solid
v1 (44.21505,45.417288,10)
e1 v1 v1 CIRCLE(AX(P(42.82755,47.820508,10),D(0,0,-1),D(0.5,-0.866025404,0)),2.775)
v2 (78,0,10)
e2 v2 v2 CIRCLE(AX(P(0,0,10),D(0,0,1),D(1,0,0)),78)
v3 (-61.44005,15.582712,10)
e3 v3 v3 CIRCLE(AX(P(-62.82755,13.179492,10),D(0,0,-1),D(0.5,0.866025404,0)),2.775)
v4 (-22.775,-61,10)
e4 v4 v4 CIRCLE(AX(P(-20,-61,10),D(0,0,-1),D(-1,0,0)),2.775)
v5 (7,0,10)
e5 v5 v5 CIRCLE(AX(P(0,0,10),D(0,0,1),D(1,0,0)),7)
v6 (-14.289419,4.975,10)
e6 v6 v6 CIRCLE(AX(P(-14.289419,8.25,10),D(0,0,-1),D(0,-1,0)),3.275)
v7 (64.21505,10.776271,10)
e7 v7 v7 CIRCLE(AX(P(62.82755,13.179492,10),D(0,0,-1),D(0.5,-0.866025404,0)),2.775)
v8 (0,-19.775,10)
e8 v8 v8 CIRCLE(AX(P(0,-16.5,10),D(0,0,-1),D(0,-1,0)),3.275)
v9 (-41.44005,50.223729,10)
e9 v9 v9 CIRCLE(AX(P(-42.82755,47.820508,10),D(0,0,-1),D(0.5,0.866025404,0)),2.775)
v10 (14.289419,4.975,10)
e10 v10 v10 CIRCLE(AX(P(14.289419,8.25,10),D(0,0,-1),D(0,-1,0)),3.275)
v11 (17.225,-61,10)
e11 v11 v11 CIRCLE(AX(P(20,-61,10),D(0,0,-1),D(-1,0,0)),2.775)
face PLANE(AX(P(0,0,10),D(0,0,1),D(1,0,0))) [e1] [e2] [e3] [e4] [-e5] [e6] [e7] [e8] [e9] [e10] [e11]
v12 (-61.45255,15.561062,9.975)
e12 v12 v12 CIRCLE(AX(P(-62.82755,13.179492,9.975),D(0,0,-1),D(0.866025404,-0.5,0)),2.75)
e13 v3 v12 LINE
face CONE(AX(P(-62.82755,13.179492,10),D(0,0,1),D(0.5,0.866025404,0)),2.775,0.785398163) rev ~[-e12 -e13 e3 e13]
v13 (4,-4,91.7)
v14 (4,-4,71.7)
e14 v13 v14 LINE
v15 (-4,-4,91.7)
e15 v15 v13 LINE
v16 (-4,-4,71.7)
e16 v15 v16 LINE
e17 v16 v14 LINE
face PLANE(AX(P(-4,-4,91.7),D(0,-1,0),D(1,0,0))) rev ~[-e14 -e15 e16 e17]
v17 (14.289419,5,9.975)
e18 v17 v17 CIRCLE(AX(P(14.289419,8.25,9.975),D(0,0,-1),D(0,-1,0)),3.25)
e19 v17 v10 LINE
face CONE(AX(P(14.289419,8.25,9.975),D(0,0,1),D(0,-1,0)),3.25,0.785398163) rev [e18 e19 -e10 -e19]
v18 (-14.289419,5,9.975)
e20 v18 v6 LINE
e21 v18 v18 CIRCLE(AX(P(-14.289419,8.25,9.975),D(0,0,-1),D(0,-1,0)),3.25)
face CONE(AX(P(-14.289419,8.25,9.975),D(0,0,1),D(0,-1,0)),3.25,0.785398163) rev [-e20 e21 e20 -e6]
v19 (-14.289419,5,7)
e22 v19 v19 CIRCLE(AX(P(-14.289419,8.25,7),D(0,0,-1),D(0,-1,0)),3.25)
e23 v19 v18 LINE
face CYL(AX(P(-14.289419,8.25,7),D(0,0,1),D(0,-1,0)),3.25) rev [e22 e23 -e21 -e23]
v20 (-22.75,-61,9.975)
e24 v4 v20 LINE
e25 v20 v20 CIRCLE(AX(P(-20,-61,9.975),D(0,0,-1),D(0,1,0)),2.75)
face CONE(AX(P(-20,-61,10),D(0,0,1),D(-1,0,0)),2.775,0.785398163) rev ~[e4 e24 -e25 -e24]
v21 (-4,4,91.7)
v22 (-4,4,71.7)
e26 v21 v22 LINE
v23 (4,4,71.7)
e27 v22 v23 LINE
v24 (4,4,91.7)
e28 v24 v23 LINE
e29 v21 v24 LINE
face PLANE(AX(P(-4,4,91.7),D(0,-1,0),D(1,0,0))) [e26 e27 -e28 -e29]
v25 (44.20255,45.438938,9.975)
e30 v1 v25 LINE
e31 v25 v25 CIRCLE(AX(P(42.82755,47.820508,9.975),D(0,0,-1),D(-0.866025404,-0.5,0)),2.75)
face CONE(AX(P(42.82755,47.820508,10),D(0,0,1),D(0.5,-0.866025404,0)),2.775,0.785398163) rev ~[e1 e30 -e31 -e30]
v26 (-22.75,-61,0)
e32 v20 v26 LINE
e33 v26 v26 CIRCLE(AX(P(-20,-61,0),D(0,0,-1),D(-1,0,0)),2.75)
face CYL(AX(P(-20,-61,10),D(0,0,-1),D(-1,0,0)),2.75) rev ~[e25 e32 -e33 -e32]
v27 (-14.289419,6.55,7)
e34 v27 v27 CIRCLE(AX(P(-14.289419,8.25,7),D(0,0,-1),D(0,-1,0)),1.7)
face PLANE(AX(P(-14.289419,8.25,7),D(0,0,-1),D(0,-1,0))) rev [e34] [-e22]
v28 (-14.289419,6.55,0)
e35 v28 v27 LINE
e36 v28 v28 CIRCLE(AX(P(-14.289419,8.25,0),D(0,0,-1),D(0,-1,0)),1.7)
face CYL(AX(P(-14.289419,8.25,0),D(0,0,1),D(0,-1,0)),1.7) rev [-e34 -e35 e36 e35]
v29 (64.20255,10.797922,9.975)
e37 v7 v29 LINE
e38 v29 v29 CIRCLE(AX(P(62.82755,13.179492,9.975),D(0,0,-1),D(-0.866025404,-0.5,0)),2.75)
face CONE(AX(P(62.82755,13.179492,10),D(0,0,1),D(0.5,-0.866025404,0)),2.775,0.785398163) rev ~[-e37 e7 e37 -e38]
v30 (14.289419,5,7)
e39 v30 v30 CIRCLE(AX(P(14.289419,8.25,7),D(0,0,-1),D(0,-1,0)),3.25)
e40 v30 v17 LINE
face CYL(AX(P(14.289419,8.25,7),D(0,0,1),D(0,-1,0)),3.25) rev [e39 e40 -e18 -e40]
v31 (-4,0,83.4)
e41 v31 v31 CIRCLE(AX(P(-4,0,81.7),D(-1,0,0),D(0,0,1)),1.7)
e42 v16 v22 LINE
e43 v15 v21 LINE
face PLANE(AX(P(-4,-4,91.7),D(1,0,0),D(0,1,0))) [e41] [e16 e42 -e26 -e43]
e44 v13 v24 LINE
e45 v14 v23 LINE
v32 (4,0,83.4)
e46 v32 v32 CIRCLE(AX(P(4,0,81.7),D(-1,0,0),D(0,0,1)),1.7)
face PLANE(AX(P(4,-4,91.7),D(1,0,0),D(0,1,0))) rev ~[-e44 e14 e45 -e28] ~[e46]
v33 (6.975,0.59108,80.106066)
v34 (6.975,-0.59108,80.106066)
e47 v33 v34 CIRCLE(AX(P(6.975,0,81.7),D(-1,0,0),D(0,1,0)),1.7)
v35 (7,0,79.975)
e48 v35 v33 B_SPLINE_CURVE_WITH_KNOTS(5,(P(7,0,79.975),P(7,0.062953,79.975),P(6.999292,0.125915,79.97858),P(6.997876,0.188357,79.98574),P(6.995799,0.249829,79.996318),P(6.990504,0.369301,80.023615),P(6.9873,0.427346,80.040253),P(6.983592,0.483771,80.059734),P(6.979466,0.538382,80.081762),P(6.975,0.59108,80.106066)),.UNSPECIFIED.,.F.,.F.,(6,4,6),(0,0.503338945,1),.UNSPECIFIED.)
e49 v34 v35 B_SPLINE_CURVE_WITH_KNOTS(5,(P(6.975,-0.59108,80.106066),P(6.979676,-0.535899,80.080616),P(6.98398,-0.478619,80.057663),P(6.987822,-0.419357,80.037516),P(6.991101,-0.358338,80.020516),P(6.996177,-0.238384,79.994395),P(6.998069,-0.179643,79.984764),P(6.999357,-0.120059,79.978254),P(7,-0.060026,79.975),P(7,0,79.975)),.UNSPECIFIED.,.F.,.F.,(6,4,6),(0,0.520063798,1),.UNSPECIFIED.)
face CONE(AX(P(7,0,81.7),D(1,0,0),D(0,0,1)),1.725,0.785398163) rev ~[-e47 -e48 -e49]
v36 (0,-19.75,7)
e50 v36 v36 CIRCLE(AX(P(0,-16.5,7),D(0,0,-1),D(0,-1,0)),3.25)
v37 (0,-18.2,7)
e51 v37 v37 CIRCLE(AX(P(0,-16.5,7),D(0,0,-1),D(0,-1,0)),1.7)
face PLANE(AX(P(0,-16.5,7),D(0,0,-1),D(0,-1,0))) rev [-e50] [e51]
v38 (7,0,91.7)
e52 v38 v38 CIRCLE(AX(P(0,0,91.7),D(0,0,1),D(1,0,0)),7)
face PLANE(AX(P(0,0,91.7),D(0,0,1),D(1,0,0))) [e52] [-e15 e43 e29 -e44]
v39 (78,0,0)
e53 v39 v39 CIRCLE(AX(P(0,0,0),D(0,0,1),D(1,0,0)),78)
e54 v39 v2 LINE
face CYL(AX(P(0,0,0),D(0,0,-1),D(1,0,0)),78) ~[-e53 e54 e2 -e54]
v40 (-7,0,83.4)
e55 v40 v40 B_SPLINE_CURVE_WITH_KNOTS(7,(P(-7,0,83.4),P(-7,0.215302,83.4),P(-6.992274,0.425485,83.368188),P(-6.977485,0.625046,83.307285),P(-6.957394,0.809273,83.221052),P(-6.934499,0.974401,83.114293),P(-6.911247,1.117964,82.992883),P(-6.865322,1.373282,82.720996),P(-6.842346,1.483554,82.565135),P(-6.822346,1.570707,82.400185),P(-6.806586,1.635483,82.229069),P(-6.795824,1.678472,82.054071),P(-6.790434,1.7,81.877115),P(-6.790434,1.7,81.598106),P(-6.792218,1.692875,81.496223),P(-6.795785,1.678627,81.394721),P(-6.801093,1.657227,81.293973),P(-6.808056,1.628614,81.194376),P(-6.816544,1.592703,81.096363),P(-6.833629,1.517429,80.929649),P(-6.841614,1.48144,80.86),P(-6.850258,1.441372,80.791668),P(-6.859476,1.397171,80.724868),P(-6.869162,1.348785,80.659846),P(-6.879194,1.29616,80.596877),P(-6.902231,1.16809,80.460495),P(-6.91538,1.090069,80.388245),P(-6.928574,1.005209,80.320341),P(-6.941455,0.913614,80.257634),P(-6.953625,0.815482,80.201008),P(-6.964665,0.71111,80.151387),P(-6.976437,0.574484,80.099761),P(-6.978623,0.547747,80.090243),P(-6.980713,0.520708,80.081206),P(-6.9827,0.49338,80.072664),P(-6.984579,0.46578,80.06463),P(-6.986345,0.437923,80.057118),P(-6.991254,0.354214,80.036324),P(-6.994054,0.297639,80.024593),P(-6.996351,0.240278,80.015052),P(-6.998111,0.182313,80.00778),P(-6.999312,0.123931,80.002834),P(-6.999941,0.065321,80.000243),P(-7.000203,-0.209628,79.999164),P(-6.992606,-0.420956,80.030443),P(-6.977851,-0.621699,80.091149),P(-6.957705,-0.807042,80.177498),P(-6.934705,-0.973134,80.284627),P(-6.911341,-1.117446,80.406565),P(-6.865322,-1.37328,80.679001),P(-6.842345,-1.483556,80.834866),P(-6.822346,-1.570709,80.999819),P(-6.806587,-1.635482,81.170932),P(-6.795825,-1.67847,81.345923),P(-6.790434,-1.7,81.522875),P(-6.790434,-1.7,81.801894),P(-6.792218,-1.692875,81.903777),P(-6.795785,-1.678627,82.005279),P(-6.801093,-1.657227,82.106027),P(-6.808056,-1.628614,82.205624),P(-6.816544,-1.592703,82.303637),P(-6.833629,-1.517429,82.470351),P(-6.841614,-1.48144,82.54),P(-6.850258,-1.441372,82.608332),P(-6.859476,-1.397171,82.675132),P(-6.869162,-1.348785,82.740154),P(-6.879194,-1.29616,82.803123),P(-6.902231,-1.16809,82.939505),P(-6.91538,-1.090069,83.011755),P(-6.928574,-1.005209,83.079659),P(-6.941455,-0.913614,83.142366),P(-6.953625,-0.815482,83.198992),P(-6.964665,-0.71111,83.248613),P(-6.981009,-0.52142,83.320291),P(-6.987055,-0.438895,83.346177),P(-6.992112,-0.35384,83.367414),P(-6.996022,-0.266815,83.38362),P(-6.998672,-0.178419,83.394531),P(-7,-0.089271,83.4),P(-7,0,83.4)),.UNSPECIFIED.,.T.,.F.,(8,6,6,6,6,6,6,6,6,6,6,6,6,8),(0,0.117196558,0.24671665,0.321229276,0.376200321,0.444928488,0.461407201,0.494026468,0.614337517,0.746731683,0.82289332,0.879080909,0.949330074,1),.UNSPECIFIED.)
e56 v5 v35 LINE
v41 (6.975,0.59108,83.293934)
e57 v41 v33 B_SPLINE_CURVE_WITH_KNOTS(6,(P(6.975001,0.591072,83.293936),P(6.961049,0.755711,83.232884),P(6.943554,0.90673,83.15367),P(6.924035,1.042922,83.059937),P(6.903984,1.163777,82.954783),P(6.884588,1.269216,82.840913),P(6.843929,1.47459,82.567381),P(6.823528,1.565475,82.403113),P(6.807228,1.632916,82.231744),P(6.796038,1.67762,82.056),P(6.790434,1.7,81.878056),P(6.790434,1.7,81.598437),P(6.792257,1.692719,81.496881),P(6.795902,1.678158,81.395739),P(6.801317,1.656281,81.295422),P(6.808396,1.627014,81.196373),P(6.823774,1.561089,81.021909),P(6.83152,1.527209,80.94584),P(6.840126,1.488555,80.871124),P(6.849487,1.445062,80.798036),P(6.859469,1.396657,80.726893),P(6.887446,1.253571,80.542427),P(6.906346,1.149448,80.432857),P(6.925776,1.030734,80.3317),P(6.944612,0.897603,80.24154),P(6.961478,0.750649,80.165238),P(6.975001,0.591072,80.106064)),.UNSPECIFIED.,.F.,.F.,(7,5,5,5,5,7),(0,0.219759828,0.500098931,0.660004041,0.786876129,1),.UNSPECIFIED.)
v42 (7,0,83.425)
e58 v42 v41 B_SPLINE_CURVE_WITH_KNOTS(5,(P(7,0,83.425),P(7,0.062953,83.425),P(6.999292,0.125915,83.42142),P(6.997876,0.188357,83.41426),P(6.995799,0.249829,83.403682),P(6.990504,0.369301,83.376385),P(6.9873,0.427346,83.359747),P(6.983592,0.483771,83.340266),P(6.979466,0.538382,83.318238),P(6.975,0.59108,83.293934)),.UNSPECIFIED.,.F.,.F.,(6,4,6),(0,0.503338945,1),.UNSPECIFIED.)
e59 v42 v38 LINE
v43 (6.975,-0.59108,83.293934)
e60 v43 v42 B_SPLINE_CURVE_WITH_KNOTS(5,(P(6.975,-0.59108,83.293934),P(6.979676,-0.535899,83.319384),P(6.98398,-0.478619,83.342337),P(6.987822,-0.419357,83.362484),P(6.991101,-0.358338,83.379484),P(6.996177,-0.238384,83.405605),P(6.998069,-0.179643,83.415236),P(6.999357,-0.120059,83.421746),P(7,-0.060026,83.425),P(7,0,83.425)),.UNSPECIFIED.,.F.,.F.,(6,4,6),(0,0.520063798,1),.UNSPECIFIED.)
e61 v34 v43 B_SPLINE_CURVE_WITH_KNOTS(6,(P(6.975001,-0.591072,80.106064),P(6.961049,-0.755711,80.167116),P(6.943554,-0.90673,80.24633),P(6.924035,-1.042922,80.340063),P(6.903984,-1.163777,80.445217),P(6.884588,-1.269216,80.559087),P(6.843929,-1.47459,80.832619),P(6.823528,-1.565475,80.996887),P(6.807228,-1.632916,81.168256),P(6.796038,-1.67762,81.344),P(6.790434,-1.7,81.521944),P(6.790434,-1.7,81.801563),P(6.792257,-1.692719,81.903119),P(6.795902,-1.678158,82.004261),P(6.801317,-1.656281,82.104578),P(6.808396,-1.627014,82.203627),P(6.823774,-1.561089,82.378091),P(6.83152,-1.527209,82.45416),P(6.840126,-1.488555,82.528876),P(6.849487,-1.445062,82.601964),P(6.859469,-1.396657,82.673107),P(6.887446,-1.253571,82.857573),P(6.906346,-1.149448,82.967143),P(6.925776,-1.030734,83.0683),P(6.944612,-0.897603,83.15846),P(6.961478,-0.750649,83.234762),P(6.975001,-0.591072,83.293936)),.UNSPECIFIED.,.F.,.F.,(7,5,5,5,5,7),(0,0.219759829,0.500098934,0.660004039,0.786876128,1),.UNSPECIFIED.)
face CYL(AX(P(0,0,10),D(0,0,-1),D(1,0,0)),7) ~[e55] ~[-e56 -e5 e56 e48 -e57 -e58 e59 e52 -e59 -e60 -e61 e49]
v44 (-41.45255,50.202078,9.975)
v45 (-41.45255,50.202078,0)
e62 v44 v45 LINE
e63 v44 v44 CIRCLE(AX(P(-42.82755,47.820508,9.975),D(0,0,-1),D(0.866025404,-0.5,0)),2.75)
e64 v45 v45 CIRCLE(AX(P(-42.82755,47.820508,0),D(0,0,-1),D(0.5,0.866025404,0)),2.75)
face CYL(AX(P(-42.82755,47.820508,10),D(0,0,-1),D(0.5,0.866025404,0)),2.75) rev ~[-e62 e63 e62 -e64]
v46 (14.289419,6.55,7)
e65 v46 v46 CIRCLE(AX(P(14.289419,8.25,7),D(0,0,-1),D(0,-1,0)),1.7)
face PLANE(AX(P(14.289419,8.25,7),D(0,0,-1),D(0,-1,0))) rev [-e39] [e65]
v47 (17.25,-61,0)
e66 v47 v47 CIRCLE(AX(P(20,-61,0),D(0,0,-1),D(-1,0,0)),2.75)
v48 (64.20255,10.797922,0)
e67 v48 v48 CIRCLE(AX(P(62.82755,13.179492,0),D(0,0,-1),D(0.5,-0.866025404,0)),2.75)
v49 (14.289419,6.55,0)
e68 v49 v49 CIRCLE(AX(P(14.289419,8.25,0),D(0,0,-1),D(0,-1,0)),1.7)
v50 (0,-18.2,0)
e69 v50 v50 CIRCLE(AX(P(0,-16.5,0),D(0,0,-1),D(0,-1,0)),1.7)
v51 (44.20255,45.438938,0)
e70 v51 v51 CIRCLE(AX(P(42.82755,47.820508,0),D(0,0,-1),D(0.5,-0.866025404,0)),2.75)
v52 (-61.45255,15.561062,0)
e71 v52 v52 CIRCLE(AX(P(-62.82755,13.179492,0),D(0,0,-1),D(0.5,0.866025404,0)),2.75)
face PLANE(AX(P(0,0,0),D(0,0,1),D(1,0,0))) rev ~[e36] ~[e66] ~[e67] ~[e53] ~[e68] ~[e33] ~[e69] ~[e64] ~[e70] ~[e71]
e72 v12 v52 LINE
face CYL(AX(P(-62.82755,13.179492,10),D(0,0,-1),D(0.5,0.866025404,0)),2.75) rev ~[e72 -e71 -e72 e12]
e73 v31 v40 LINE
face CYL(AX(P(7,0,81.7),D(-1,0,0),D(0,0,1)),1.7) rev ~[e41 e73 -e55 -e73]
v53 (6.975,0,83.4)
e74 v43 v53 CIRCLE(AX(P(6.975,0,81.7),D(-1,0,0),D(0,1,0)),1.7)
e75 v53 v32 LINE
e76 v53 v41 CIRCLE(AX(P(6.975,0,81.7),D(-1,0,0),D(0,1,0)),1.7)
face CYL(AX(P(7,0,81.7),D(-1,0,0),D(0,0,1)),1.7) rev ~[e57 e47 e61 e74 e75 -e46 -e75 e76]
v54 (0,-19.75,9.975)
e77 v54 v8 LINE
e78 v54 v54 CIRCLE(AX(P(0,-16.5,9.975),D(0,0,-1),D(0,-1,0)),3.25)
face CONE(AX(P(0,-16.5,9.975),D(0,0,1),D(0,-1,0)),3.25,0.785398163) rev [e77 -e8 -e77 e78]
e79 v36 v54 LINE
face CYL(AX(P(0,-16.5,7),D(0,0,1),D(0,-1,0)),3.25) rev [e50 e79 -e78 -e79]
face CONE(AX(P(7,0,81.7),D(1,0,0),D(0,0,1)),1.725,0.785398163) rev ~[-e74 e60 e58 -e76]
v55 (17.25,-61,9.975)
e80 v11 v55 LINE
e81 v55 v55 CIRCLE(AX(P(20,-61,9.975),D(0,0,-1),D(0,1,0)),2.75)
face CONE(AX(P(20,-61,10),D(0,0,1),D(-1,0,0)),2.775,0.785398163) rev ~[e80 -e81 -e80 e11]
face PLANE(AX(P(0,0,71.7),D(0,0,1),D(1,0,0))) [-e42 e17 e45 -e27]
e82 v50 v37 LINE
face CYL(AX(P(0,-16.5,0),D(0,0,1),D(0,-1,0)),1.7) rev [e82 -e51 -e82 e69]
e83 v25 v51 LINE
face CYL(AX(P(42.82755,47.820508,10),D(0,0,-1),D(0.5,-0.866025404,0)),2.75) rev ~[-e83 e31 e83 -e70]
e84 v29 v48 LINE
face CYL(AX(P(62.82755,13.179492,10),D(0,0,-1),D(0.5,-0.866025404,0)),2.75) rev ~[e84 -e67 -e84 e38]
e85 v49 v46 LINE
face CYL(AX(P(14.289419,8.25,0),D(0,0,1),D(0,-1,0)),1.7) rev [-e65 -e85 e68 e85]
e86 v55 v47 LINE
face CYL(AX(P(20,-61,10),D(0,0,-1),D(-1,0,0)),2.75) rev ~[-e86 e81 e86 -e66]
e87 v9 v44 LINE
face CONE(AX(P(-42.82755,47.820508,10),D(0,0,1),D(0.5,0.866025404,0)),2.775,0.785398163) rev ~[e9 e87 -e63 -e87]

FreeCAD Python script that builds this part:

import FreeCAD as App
import Part
import Sketcher
from FreeCAD import Vector
Q = App.Units.Quantity


def add_polygon(sketch, points):
    """Adds a closed chain of lines whose ends are joined by coincident constraints."""
    first, n = sketch.GeometryCount, len(points)
    for a, b in zip(points, points[1:] + points[:1]):
        sketch.addGeometry(Part.LineSegment(App.Vector(*a, 0), App.Vector(*b, 0)), False)
    for i in range(n):
        sketch.addConstraint(Sketcher.Constraint("Coincident", first + i, 2, first + (i + 1) % n, 1))

doc = App.newDocument("Part")
body = doc.addObject("PartDesign::Body", "Body")

# Sketch on XY plane
sketch1 = body.newObject("Sketcher::SketchObject", "Sketch")
sketch1.AttachmentSupport = (doc.getObject("XY_Plane"), [""])
sketch1.MapMode = "FlatFace"
sketch1.addGeometry(Part.Circle(Vector(0, 0, 0), Vector(0, 0, 1), 78), False)
sketch1.addConstraint(Sketcher.Constraint("Coincident", 0, 3, -1, 1))
sketch1.addConstraint(Sketcher.Constraint("Diameter", 0, Q("156 mm")))
pad1 = body.newObject("PartDesign::Pad", "Pad")
pad1.Profile = sketch1
pad1.Length = 10

# Sketch on YZ plane
sketch2 = body.newObject("Sketcher::SketchObject", "Sketch001")
sketch2.AttachmentSupport = (doc.getObject("YZ_Plane"), [""])
sketch2.MapMode = "FlatFace"
sketch2.AttachmentOffset = App.Placement(Vector(0, 0, -14.289419), App.Rotation())
add_polygon(sketch2, [(8.25, 0), (8.25, 10), (4.975, 10), (5, 9.975), (5, 7), (6.55, 7), (6.55, 0)])  # lines 0-6
sketch2.addGeometry(Part.LineSegment(Vector(8.25, 10, 0), Vector(8.25, 0, 0)), True)  # axis
sketch2.addConstraint(Sketcher.Constraint("Vertical", 0))
sketch2.addConstraint(Sketcher.Constraint("Horizontal", 1))
sketch2.addConstraint(Sketcher.Constraint("Vertical", 3))
sketch2.addConstraint(Sketcher.Constraint("Horizontal", 4))
sketch2.addConstraint(Sketcher.Constraint("Vertical", 5))
sketch2.addConstraint(Sketcher.Constraint("Horizontal", 6))
sketch2.addConstraint(Sketcher.Constraint("Vertical", 7))
sketch2.addConstraint(Sketcher.Constraint("Coincident", 7, 1, 0, 2))
sketch2.addConstraint(Sketcher.Constraint("PointOnObject", 5, 2, -1))
sketch2.addConstraint(Sketcher.Constraint("PointOnObject", 7, 2, -1))
sketch2.addConstraint(Sketcher.Constraint("DistanceY", 0, 1, 0, 2, Q("10 mm")))
sketch2.addConstraint(Sketcher.Constraint("DistanceY", 5, 2, 5, 1, Q("7 mm")))
sketch2.addConstraint(Sketcher.Constraint("Angle", 2, Q("-45 deg")))
sketch2.addConstraint(Sketcher.Constraint("DistanceX", 6, 1, 6, 2, Q("1.7 mm")))
sketch2.addConstraint(Sketcher.Constraint("DistanceX", -1, 1, 2, 2, Q("5 mm")))
sketch2.addConstraint(Sketcher.Constraint("DistanceX", 4, 1, 4, 2, Q("1.55 mm")))
sketch2.addConstraint(Sketcher.Constraint("DistanceX", 1, 2, 1, 1, Q("3.275 mm")))
groove = body.newObject("PartDesign::Groove", "Groove")
groove.Profile = sketch2
groove.ReferenceAxis = (sketch2, ["Axis0"])
groove.Angle = 360
doc.recompute()

linearpattern = body.newObject("PartDesign::LinearPattern", "LinearPattern")
linearpattern.Originals = [groove]
linearpattern.Direction = (doc.getObject("X_Axis"), [""])
linearpattern.Mode = "offset"
linearpattern.Offset = 28.578838
linearpattern.Occurrences = 2
body.Tip = linearpattern
doc.recompute()

datumline = body.newObject("PartDesign::Line", "DatumLine")
datumline.Placement = App.Placement(Vector(0, 0, 0), App.Rotation(Vector(0, 0, 1), Vector(0.5, -0.866025404, 0)))
linearpattern2 = body.newObject("PartDesign::LinearPattern", "LinearPattern001")
linearpattern2.Originals = [groove]
linearpattern2.Direction = (datumline, [""])
linearpattern2.Mode = "offset"
linearpattern2.Offset = 28.578838
linearpattern2.Occurrences = 2
body.Tip = linearpattern2

# Sketch on XY plane
sketch3 = body.newObject("Sketcher::SketchObject", "Sketch002")
sketch3.AttachmentSupport = (doc.getObject("XY_Plane"), [""])
sketch3.MapMode = "FlatFace"
sketch3.AttachmentOffset = App.Placement(Vector(0, 0, 10), App.Rotation())
sketch3.addGeometry(Part.Circle(Vector(0, 0, 0), Vector(0, 0, 1), 7), False)
sketch3.addConstraint(Sketcher.Constraint("Coincident", 0, 3, -1, 1))
sketch3.addConstraint(Sketcher.Constraint("Diameter", 0, Q("14 mm")))
pad2 = body.newObject("PartDesign::Pad", "Pad001")
pad2.Profile = sketch3
pad2.Length = 81.7

# Sketch on XY plane
sketch4 = body.newObject("Sketcher::SketchObject", "Sketch003")
sketch4.AttachmentSupport = (doc.getObject("XY_Plane"), [""])
sketch4.MapMode = "FlatFace"
sketch4.AttachmentOffset = App.Placement(Vector(0, 0, 91.7), App.Rotation())
add_polygon(sketch4, [(-4, 4), (-4, -4), (4, -4), (4, 4)])  # lines 0-3
sketch4.addConstraint(Sketcher.Constraint("Vertical", 0))
sketch4.addConstraint(Sketcher.Constraint("Horizontal", 1))
sketch4.addConstraint(Sketcher.Constraint("Vertical", 2))
sketch4.addConstraint(Sketcher.Constraint("Horizontal", 3))
sketch4.addConstraint(Sketcher.Constraint("Symmetric", 0, 2, 2, 2, -1, 1))
sketch4.addConstraint(Sketcher.Constraint("Equal", 3, 0))
sketch4.addConstraint(Sketcher.Constraint("DistanceX", 1, 1, 1, 2, Q("8 mm")))
pocket1 = body.newObject("PartDesign::Pocket", "Pocket")
pocket1.Profile = sketch4
pocket1.Length = 20

# Sketch on XY plane
sketch5 = body.newObject("Sketcher::SketchObject", "Sketch004")
sketch5.AttachmentSupport = (doc.getObject("XY_Plane"), [""])
sketch5.MapMode = "FlatFace"
sketch5.AttachmentOffset = App.Placement(Vector(0, 0, 10), App.Rotation())
sketch5.addGeometry(Part.Circle(Vector(-20, -61, 0), Vector(0, 0, 1), 2.8), False)
sketch5.addGeometry(Part.Circle(Vector(20, -61, 0), Vector(0, 0, 1), 2.8), False)
sketch5.addConstraint(Sketcher.Constraint("Equal", 0, 1))
sketch5.addConstraint(Sketcher.Constraint("Symmetric", 0, 3, 1, 3, -2))
sketch5.addConstraint(Sketcher.Constraint("Diameter", 0, Q("5.5 mm")))
sketch5.addConstraint(Sketcher.Constraint("DistanceX", 0, 3, -1, 1, Q("20 mm")))
sketch5.addConstraint(Sketcher.Constraint("DistanceY", 0, 3, -1, 1, Q("61 mm")))
doc.recompute()
hole = body.newObject("PartDesign::Hole", "Hole")
hole.Profile = sketch5
hole.ThreadType = "None"
hole.Diameter = 5.5
hole.DepthType = "ThroughAll"
hole.HoleCutType = "Countersink"
hole.HoleCutDiameter = 5.55
hole.HoleCutCountersinkAngle = 90
doc.recompute()

polarpattern = body.newObject("PartDesign::PolarPattern", "PolarPattern")
polarpattern.Originals = [hole]
polarpattern.Axis = (doc.getObject("Z_Axis"), [""])
polarpattern.Angle = 360
polarpattern.Occurrences = 3
body.Tip = polarpattern

# Sketch on YZ plane
sketch6 = body.newObject("Sketcher::SketchObject", "Sketch005")
sketch6.AttachmentSupport = (doc.getObject("YZ_Plane"), [""])
sketch6.MapMode = "FlatFace"
sketch6.AttachmentOffset = App.Placement(Vector(0, 0, 7), App.Rotation())
sketch6.addGeometry(Part.Circle(Vector(0, 81.7, 0), Vector(0, 0, 1), 1.7), False)
sketch6.addConstraint(Sketcher.Constraint("PointOnObject", 0, 3, -2))
sketch6.addConstraint(Sketcher.Constraint("Diameter", 0, Q("3.4 mm")))
sketch6.addConstraint(Sketcher.Constraint("DistanceY", -1, 1, 0, 3, Q("81.7 mm")))
doc.recompute()
hole2 = body.newObject("PartDesign::Hole", "Hole001")
hole2.Profile = sketch6
hole2.ThreadType = "None"
hole2.Diameter = 3.4
hole2.DepthType = "ThroughAll"
hole2.HoleCutType = "Countersink"
hole2.HoleCutDiameter = 3.45
hole2.HoleCutCountersinkAngle = 90

doc.recompute()
